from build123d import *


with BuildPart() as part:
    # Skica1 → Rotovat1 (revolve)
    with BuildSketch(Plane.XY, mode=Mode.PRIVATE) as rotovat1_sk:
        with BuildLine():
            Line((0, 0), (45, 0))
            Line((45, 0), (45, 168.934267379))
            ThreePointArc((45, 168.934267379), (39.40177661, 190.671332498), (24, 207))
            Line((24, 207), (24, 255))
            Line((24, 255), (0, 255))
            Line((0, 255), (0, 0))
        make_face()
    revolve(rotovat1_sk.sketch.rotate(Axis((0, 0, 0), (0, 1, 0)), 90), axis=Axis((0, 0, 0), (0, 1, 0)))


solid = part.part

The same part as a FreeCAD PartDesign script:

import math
import FreeCAD as App
import Part
import Sketcher
from FreeCAD import Vector
Q = App.Units.Quantity

doc = App.newDocument("Part")
body = doc.addObject("PartDesign::Body", "Body")

# Sketch on XY plane
sketch1 = body.newObject("Sketcher::SketchObject", "Sketch")
sketch1.AttachmentSupport = (doc.getObject("XY_Plane"), [""])
sketch1.MapMode = "FlatFace"
sketch1.addGeometry([
    Part.LineSegment(Vector(0, 0, 0), Vector(45, 0, 0)),  # 0
    Part.LineSegment(Vector(45, 0, 0), Vector(45, 169, 0)),  # 1
    Part.ArcOfCircle(Part.Circle(Vector(0, 169, 0), Vector(0, 0, 1), 45), math.radians(0), math.radians(58)),  # 2
    Part.LineSegment(Vector(24, 207, 0), Vector(24, 255, 0)),  # 3
    Part.LineSegment(Vector(24, 255, 0), Vector(0, 255, 0)),  # 4
    Part.LineSegment(Vector(0, 255, 0), Vector(0, 0, 0)),  # 5
], False)
sketch1.addConstraint([
    Sketcher.Constraint("Coincident", 0, 2, 1, 1),
    Sketcher.Constraint("Tangent", 1, 2, 2, 1),
    Sketcher.Constraint("Coincident", 2, 2, 3, 1),
    Sketcher.Constraint("Coincident", 3, 2, 4, 1),
    Sketcher.Constraint("Coincident", 4, 2, 5, 1),
    Sketcher.Constraint("Coincident", 5, 2, 0, 1),
    Sketcher.Constraint("Horizontal", 0),
    Sketcher.Constraint("Vertical", 1),
    Sketcher.Constraint("Vertical", 3),
    Sketcher.Constraint("Horizontal", 4),
    Sketcher.Constraint("Vertical", 5),
    Sketcher.Constraint("Coincident", 5, 2, -1, 1),
    Sketcher.Constraint("PointOnObject", 2, 3, -2),
    Sketcher.Constraint("Radius", 2, Q("45 mm")),
    Sketcher.Constraint("DistanceX", 4, 2, 4, 1, Q("24 mm")),
    Sketcher.Constraint("DistanceY", 3, 1, 3, 2, Q("48 mm")),
    Sketcher.Constraint("DistanceY", 5, 2, 5, 1, Q("255 mm")),
])
revolution = body.newObject("PartDesign::Revolution", "Revolution")
revolution.Profile = sketch1
revolution.ReferenceAxis = (sketch1, ["V_Axis"])
revolution.Angle = 360

doc.recompute()
